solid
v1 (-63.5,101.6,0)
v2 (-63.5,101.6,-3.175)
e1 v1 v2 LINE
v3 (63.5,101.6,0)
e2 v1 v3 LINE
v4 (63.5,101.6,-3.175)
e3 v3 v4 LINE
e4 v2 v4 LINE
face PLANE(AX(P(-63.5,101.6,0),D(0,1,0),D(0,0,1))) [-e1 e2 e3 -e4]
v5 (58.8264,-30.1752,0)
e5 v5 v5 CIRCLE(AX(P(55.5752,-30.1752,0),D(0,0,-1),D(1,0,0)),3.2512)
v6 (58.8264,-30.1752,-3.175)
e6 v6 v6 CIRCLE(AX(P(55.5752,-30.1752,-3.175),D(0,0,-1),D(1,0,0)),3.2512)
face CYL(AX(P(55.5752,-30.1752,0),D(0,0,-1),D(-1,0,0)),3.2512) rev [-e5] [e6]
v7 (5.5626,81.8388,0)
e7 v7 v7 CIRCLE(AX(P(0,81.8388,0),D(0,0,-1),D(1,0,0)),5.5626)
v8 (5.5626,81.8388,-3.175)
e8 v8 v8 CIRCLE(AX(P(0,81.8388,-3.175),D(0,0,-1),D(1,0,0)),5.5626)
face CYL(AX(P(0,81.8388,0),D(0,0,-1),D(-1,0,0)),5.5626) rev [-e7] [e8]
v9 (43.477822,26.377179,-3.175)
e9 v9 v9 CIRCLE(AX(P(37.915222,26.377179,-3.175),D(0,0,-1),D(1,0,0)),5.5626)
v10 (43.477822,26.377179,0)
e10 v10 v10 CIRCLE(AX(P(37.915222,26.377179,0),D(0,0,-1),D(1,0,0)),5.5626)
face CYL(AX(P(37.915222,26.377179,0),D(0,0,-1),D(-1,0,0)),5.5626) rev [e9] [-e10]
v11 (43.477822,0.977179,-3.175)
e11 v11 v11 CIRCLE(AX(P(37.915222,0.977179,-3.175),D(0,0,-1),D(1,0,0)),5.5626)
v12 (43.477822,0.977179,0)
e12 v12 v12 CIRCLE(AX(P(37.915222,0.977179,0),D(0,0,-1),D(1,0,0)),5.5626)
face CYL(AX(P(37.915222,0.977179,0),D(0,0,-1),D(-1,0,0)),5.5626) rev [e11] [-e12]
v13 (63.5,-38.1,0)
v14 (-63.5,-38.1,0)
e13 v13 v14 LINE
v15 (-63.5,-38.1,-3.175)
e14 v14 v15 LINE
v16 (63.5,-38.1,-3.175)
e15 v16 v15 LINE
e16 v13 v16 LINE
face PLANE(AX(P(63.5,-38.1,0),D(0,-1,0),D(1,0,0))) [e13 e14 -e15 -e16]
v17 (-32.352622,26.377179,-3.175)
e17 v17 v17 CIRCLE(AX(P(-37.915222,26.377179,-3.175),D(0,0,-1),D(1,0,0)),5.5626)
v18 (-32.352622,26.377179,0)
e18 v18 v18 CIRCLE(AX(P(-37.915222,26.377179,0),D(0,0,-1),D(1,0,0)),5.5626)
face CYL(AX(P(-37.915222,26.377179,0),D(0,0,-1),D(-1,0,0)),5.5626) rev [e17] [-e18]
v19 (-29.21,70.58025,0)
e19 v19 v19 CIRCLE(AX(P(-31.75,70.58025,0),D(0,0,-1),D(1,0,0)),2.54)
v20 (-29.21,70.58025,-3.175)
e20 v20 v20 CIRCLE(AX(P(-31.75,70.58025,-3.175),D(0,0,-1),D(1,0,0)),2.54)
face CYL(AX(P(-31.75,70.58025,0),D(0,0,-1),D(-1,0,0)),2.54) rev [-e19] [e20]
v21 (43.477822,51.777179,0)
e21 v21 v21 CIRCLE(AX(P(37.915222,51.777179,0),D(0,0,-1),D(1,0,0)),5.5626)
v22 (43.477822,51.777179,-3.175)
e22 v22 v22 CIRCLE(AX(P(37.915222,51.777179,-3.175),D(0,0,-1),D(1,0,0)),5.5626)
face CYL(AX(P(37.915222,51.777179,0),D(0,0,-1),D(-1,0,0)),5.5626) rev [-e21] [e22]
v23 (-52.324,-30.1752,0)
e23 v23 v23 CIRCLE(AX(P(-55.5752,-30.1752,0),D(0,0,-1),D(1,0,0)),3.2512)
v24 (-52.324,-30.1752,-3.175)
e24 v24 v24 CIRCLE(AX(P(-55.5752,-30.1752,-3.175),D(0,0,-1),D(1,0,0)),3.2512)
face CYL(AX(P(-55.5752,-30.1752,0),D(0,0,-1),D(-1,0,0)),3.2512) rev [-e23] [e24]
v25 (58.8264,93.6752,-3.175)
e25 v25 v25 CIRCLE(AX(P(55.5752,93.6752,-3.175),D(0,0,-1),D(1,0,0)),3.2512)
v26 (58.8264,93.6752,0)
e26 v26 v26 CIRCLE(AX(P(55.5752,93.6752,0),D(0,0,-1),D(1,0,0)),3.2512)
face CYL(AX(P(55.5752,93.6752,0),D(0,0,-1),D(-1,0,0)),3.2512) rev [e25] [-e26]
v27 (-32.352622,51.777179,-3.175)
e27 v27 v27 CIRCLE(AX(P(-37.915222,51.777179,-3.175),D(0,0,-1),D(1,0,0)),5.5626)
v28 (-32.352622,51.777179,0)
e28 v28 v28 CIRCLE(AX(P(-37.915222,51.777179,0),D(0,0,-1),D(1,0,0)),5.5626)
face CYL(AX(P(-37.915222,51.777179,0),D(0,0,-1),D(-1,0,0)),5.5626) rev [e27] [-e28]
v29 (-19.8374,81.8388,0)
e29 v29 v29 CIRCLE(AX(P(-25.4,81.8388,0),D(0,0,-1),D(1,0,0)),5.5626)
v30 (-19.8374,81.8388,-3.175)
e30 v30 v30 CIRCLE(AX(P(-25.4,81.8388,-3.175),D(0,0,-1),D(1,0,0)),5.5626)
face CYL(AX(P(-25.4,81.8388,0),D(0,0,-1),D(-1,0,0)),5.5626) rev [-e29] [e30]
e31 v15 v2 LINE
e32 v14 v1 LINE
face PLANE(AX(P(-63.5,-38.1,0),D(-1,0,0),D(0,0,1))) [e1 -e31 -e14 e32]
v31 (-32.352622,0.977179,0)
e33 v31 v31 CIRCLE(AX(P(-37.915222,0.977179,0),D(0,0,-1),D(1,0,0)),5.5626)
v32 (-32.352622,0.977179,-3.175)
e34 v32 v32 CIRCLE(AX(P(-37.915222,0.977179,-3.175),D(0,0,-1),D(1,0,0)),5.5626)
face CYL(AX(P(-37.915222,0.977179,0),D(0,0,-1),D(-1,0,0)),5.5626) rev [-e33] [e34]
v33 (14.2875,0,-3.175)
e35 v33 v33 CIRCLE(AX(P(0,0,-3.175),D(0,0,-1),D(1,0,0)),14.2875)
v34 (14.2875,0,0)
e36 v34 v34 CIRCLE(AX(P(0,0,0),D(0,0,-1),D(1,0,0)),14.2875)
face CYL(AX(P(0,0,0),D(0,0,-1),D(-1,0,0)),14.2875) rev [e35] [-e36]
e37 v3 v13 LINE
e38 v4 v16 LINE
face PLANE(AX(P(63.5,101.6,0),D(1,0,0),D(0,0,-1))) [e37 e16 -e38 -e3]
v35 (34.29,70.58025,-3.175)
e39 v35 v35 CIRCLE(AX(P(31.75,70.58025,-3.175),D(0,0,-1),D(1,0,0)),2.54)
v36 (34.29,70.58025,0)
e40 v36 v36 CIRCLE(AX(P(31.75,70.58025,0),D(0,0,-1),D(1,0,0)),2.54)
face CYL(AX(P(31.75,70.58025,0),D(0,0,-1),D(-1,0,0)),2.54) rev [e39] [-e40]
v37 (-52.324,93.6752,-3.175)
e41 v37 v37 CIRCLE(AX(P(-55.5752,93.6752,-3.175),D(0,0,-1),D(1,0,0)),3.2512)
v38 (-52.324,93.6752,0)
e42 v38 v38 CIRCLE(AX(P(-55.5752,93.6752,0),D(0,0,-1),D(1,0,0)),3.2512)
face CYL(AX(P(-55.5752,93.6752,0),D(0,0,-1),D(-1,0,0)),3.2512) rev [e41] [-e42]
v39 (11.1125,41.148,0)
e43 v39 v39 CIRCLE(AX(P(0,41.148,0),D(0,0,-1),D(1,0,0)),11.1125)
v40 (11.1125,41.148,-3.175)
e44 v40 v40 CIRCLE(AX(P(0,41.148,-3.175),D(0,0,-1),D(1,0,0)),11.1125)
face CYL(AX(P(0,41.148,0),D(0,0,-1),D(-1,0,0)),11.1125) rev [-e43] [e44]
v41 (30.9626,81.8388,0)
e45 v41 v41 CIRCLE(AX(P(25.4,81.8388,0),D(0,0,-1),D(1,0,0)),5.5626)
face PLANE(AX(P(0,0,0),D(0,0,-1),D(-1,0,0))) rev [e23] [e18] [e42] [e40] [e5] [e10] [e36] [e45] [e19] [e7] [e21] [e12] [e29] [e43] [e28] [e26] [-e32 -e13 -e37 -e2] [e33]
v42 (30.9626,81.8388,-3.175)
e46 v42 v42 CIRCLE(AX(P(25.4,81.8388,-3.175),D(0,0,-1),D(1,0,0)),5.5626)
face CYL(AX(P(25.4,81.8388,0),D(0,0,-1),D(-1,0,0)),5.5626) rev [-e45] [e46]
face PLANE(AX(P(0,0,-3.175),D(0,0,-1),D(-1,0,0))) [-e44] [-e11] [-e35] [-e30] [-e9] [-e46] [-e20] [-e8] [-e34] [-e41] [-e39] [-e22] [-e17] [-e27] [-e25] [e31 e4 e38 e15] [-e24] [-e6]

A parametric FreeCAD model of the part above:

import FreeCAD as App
import Part
import Sketcher
from FreeCAD import Vector
Q = App.Units.Quantity


def add_polygon(sketch, points):
    """Adds a closed chain of lines whose ends are joined by coincident constraints."""
    first, n = sketch.GeometryCount, len(points)
    for a, b in zip(points, points[1:] + points[:1]):
        sketch.addGeometry(Part.LineSegment(App.Vector(*a, 0), App.Vector(*b, 0)), False)
    for i in range(n):
        sketch.addConstraint(Sketcher.Constraint("Coincident", first + i, 2, first + (i + 1) % n, 1))

doc = App.newDocument("Part")
body = doc.addObject("PartDesign::Body", "Body")

# Sketch on XY plane
sketch1 = body.newObject("Sketcher::SketchObject", "Sketch")
sketch1.AttachmentSupport = (doc.getObject("XY_Plane"), [""])
sketch1.MapMode = "FlatFace"
sketch1.AttachmentOffset = App.Placement(Vector(0, 0, -0.125 * 25.4), App.Rotation())
add_polygon(sketch1, [(63.5, 101.6), (63.5, -38.1), (-63.5, -38.1), (-63.5, 101.6)])  # lines 0-3
sketch1.addGeometry(Part.Circle(Vector(55.6, -30.2, 0), Vector(0, 0, 1), 3.3), False)  # 4
sketch1.addGeometry(Part.Circle(Vector(37.9, 1, 0), Vector(0, 0, 1), 5.6), False)  # 5
sketch1.addGeometry(Part.Circle(Vector(37.9, 26.4, 0), Vector(0, 0, 1), 5.6), False)  # 6
sketch1.addGeometry(Part.Circle(Vector(-55.6, -30.2, 0), Vector(0, 0, 1), 3.3), False)  # 7
sketch1.addGeometry(Part.Circle(Vector(0, 0, 0), Vector(0, 0, 1), 14.3), False)  # 8
sketch1.addGeometry(Part.Circle(Vector(-37.9, 1, 0), Vector(0, 0, 1), 5.6), False)  # 9
sketch1.addGeometry(Part.Circle(Vector(-37.9, 26.4, 0), Vector(0, 0, 1), 5.6), False)  # 10
sketch1.addGeometry(Part.Circle(Vector(37.9, 51.8, 0), Vector(0, 0, 1), 5.6), False)  # 11
sketch1.addGeometry(Part.Circle(Vector(31.8, 70.6, 0), Vector(0, 0, 1), 2.5), False)  # 12
sketch1.addGeometry(Part.Circle(Vector(55.6, 93.7, 0), Vector(0, 0, 1), 3.3), False)  # 13
sketch1.addGeometry(Part.Circle(Vector(25.4, 81.8, 0), Vector(0, 0, 1), 5.6), False)  # 14
sketch1.addGeometry(Part.Circle(Vector(0, 41.1, 0), Vector(0, 0, 1), 11.1), False)  # 15
sketch1.addGeometry(Part.Circle(Vector(-37.9, 51.8, 0), Vector(0, 0, 1), 5.6), False)  # 16
sketch1.addGeometry(Part.Circle(Vector(0, 81.8, 0), Vector(0, 0, 1), 5.6), False)  # 17
sketch1.addGeometry(Part.Circle(Vector(-25.4, 81.8, 0), Vector(0, 0, 1), 5.6), False)  # 18
sketch1.addGeometry(Part.Circle(Vector(-31.8, 70.6, 0), Vector(0, 0, 1), 2.5), False)  # 19
sketch1.addGeometry(Part.Circle(Vector(-55.6, 93.7, 0), Vector(0, 0, 1), 3.3), False)  # 20
sketch1.addConstraint([
    Sketcher.Constraint("Vertical", 0),
    Sketcher.Constraint("Horizontal", 1),
    Sketcher.Constraint("Vertical", 2),
    Sketcher.Constraint("Horizontal", 3),
    Sketcher.Constraint("Coincident", 8, 3, -1, 1),
    Sketcher.Constraint("Equal", 5, 6),
    Sketcher.Constraint("Equal", 4, 7),
    Sketcher.Constraint("Equal", 6, 9),
    Sketcher.Constraint("Equal", 9, 10),
    Sketcher.Constraint("Equal", 10, 11),
    Sketcher.Constraint("Equal", 7, 13),
    Sketcher.Constraint("Equal", 11, 14),
    Sketcher.Constraint("Equal", 14, 16),
    Sketcher.Constraint("Equal", 16, 17),
    Sketcher.Constraint("Equal", 17, 18),
    Sketcher.Constraint("Equal", 12, 19),
    Sketcher.Constraint("Equal", 13, 20),
    Sketcher.Constraint("Symmetric", 4, 3, 7, 3, -2),
    Sketcher.Constraint("Symmetric", 5, 3, 9, 3, -2),
    Sketcher.Constraint("Symmetric", 6, 3, 10, 3, -2),
    Sketcher.Constraint("Symmetric", 11, 3, 16, 3, -2),
    Sketcher.Constraint("Symmetric", 14, 3, 18, 3, -2),
    Sketcher.Constraint("Symmetric", 12, 3, 19, 3, -2),
    Sketcher.Constraint("Symmetric", 13, 3, 20, 3, -2),
    Sketcher.Constraint("PointOnObject", 15, 3, -2),
    Sketcher.Constraint("PointOnObject", 17, 3, -2),
    Sketcher.Constraint("Horizontal", 14, 3, 17, 3),
    Sketcher.Constraint("Vertical", 5, 3, 6, 3),
    Sketcher.Constraint("Vertical", 6, 3, 11, 3),
    Sketcher.Constraint("Vertical", 4, 3, 13, 3),
    Sketcher.Constraint("Diameter", 12, Q("0.2 in")),
    Sketcher.Constraint("DistanceX", 1, 2, 1, 1, Q("5 in")),
    Sketcher.Constraint("Diameter", 4, Q("0.256 in")),
    Sketcher.Constraint("Diameter", 5, Q("0.438 in")),
    Sketcher.Constraint("Diameter", 8, Q("1.125 in")),
    Sketcher.Constraint("Diameter", 15, Q("0.875 in")),
    Sketcher.Constraint("DistanceY", 0, 2, 0, 1, Q("5.5 in")),
    Sketcher.Constraint("DistanceX", -1, 1, 14, 3, Q("1 in")),
    Sketcher.Constraint("DistanceY", -1, 1, 2, 2, Q("4 in")),
    Sketcher.Constraint("DistanceY", 5, 3, 6, 3, Q("1 in")),
    Sketcher.Constraint("DistanceY", 6, 3, 11, 3, Q("1 in")),
    Sketcher.Constraint("DistanceX", -1, 1, 0, 2, Q("2.5 in")),
    Sketcher.Constraint("DistanceX", -1, 1, 12, 3, Q("1.25 in")),
    Sketcher.Constraint("DistanceY", -1, 1, 15, 3, Q("1.62 in")),
    Sketcher.Constraint("DistanceX", -1, 1, 4, 3, Q("2.188 in")),
    Sketcher.Constraint("DistanceY", 4, 3, -1, 1, Q("1.188 in")),
    Sketcher.Constraint("DistanceY", -1, 1, 13, 3, Q("3.688 in")),
    Sketcher.Constraint("DistanceY", -1, 1, 14, 3, Q("3.222 in")),
    Sketcher.Constraint("DistanceX", -1, 1, 5, 3, Q("37.915222 mm")),
    Sketcher.Constraint("DistanceY", -1, 1, 5, 3, Q("0.977179 mm")),
    Sketcher.Constraint("DistanceY", -1, 1, 12, 3, Q("70.58025 mm")),
])
pad1 = body.newObject("PartDesign::Pad", "Pad")
pad1.Profile = sketch1
pad1.Length = Q("0.125 in")

doc.recompute()
